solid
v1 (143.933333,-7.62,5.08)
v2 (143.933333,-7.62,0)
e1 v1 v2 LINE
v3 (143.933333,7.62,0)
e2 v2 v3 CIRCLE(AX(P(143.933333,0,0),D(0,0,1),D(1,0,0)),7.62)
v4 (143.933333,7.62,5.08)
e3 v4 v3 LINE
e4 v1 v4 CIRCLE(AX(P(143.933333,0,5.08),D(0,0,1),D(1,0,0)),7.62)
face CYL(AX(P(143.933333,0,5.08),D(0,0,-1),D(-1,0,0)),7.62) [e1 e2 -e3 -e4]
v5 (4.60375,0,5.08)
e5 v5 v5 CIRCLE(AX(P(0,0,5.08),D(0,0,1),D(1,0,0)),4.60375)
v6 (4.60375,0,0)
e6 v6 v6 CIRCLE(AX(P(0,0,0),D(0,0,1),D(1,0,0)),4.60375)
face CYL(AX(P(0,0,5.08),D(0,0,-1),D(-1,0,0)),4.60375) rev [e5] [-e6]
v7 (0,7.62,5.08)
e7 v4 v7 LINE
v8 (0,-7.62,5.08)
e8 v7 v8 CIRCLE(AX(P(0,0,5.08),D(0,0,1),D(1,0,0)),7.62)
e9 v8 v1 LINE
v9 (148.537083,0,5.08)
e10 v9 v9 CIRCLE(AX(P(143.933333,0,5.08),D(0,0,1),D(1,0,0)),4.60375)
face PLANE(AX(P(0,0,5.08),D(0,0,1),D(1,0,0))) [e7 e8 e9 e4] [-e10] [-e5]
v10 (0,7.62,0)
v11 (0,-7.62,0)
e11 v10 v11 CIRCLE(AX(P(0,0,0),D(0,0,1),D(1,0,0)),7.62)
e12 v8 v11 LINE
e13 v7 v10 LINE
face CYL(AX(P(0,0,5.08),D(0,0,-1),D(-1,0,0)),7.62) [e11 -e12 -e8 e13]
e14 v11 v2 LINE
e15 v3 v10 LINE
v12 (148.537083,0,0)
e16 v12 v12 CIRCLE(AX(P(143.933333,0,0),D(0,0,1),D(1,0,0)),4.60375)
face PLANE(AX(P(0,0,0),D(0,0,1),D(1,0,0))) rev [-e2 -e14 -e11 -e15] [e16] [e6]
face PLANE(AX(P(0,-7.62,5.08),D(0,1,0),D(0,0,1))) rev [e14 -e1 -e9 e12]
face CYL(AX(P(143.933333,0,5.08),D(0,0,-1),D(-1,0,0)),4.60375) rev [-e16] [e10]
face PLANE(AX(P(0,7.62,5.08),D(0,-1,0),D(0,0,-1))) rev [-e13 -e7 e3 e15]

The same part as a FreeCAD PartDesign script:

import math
import FreeCAD as App
import Part
import Sketcher
Q = App.Units.Quantity

doc = App.newDocument("Part")
body = doc.addObject("PartDesign::Body", "Body")

# Sketch on XY plane
sketch1 = body.newObject("Sketcher::SketchObject", "Sketch")
sketch1.AttachmentSupport = (doc.getObject("XY_Plane"), [""])
sketch1.MapMode = "FlatFace"
sketch1.addGeometry([
    Part.LineSegment(App.Vector(143.9, 7.6, 0), App.Vector(0, 7.6, 0)),  # 0
    Part.ArcOfCircle(Part.Circle(App.Vector(0, 0, 0), App.Vector(0, 0, 1), 7.6), math.radians(90), math.radians(270)),  # 1
    Part.LineSegment(App.Vector(0, -7.6, 0), App.Vector(143.9, -7.6, 0)),  # 2
    Part.ArcOfCircle(Part.Circle(App.Vector(143.9, 0, 0), App.Vector(0, 0, 1), 7.6), math.radians(-90), math.radians(90)),  # 3
    Part.Circle(App.Vector(143.9, 0, 0), App.Vector(0, 0, 1), 4.6),  # 4
    Part.Circle(App.Vector(0, 0, 0), App.Vector(0, 0, 1), 4.6),  # 5
], False)
sketch1.addConstraint([
    Sketcher.Constraint("Tangent", 0, 2, 1, 1),
    Sketcher.Constraint("Tangent", 1, 2, 2, 1),
    Sketcher.Constraint("Tangent", 2, 2, 3, 1),
    Sketcher.Constraint("Tangent", 3, 2, 0, 1),
    Sketcher.Constraint("Horizontal", 0),
    Sketcher.Constraint("Horizontal", 2),
    Sketcher.Constraint("Coincident", 1, 3, -1, 1),
    Sketcher.Constraint("Coincident", 5, 3, -1, 1),
    Sketcher.Constraint("Coincident", 4, 3, 3, 3),
    Sketcher.Constraint("Equal", 4, 5),
    Sketcher.Constraint("Radius", 1, Q("0.3 in")),
    Sketcher.Constraint("Diameter", 4, Q("0.3625 in")),
    Sketcher.Constraint("DistanceX", 0, 2, 0, 1, Q("143.933333 mm")),
])
pad1 = body.newObject("PartDesign::Pad", "Pad")
pad1.Profile = sketch1
pad1.Length = Q("0.2 in")

doc.recompute()
